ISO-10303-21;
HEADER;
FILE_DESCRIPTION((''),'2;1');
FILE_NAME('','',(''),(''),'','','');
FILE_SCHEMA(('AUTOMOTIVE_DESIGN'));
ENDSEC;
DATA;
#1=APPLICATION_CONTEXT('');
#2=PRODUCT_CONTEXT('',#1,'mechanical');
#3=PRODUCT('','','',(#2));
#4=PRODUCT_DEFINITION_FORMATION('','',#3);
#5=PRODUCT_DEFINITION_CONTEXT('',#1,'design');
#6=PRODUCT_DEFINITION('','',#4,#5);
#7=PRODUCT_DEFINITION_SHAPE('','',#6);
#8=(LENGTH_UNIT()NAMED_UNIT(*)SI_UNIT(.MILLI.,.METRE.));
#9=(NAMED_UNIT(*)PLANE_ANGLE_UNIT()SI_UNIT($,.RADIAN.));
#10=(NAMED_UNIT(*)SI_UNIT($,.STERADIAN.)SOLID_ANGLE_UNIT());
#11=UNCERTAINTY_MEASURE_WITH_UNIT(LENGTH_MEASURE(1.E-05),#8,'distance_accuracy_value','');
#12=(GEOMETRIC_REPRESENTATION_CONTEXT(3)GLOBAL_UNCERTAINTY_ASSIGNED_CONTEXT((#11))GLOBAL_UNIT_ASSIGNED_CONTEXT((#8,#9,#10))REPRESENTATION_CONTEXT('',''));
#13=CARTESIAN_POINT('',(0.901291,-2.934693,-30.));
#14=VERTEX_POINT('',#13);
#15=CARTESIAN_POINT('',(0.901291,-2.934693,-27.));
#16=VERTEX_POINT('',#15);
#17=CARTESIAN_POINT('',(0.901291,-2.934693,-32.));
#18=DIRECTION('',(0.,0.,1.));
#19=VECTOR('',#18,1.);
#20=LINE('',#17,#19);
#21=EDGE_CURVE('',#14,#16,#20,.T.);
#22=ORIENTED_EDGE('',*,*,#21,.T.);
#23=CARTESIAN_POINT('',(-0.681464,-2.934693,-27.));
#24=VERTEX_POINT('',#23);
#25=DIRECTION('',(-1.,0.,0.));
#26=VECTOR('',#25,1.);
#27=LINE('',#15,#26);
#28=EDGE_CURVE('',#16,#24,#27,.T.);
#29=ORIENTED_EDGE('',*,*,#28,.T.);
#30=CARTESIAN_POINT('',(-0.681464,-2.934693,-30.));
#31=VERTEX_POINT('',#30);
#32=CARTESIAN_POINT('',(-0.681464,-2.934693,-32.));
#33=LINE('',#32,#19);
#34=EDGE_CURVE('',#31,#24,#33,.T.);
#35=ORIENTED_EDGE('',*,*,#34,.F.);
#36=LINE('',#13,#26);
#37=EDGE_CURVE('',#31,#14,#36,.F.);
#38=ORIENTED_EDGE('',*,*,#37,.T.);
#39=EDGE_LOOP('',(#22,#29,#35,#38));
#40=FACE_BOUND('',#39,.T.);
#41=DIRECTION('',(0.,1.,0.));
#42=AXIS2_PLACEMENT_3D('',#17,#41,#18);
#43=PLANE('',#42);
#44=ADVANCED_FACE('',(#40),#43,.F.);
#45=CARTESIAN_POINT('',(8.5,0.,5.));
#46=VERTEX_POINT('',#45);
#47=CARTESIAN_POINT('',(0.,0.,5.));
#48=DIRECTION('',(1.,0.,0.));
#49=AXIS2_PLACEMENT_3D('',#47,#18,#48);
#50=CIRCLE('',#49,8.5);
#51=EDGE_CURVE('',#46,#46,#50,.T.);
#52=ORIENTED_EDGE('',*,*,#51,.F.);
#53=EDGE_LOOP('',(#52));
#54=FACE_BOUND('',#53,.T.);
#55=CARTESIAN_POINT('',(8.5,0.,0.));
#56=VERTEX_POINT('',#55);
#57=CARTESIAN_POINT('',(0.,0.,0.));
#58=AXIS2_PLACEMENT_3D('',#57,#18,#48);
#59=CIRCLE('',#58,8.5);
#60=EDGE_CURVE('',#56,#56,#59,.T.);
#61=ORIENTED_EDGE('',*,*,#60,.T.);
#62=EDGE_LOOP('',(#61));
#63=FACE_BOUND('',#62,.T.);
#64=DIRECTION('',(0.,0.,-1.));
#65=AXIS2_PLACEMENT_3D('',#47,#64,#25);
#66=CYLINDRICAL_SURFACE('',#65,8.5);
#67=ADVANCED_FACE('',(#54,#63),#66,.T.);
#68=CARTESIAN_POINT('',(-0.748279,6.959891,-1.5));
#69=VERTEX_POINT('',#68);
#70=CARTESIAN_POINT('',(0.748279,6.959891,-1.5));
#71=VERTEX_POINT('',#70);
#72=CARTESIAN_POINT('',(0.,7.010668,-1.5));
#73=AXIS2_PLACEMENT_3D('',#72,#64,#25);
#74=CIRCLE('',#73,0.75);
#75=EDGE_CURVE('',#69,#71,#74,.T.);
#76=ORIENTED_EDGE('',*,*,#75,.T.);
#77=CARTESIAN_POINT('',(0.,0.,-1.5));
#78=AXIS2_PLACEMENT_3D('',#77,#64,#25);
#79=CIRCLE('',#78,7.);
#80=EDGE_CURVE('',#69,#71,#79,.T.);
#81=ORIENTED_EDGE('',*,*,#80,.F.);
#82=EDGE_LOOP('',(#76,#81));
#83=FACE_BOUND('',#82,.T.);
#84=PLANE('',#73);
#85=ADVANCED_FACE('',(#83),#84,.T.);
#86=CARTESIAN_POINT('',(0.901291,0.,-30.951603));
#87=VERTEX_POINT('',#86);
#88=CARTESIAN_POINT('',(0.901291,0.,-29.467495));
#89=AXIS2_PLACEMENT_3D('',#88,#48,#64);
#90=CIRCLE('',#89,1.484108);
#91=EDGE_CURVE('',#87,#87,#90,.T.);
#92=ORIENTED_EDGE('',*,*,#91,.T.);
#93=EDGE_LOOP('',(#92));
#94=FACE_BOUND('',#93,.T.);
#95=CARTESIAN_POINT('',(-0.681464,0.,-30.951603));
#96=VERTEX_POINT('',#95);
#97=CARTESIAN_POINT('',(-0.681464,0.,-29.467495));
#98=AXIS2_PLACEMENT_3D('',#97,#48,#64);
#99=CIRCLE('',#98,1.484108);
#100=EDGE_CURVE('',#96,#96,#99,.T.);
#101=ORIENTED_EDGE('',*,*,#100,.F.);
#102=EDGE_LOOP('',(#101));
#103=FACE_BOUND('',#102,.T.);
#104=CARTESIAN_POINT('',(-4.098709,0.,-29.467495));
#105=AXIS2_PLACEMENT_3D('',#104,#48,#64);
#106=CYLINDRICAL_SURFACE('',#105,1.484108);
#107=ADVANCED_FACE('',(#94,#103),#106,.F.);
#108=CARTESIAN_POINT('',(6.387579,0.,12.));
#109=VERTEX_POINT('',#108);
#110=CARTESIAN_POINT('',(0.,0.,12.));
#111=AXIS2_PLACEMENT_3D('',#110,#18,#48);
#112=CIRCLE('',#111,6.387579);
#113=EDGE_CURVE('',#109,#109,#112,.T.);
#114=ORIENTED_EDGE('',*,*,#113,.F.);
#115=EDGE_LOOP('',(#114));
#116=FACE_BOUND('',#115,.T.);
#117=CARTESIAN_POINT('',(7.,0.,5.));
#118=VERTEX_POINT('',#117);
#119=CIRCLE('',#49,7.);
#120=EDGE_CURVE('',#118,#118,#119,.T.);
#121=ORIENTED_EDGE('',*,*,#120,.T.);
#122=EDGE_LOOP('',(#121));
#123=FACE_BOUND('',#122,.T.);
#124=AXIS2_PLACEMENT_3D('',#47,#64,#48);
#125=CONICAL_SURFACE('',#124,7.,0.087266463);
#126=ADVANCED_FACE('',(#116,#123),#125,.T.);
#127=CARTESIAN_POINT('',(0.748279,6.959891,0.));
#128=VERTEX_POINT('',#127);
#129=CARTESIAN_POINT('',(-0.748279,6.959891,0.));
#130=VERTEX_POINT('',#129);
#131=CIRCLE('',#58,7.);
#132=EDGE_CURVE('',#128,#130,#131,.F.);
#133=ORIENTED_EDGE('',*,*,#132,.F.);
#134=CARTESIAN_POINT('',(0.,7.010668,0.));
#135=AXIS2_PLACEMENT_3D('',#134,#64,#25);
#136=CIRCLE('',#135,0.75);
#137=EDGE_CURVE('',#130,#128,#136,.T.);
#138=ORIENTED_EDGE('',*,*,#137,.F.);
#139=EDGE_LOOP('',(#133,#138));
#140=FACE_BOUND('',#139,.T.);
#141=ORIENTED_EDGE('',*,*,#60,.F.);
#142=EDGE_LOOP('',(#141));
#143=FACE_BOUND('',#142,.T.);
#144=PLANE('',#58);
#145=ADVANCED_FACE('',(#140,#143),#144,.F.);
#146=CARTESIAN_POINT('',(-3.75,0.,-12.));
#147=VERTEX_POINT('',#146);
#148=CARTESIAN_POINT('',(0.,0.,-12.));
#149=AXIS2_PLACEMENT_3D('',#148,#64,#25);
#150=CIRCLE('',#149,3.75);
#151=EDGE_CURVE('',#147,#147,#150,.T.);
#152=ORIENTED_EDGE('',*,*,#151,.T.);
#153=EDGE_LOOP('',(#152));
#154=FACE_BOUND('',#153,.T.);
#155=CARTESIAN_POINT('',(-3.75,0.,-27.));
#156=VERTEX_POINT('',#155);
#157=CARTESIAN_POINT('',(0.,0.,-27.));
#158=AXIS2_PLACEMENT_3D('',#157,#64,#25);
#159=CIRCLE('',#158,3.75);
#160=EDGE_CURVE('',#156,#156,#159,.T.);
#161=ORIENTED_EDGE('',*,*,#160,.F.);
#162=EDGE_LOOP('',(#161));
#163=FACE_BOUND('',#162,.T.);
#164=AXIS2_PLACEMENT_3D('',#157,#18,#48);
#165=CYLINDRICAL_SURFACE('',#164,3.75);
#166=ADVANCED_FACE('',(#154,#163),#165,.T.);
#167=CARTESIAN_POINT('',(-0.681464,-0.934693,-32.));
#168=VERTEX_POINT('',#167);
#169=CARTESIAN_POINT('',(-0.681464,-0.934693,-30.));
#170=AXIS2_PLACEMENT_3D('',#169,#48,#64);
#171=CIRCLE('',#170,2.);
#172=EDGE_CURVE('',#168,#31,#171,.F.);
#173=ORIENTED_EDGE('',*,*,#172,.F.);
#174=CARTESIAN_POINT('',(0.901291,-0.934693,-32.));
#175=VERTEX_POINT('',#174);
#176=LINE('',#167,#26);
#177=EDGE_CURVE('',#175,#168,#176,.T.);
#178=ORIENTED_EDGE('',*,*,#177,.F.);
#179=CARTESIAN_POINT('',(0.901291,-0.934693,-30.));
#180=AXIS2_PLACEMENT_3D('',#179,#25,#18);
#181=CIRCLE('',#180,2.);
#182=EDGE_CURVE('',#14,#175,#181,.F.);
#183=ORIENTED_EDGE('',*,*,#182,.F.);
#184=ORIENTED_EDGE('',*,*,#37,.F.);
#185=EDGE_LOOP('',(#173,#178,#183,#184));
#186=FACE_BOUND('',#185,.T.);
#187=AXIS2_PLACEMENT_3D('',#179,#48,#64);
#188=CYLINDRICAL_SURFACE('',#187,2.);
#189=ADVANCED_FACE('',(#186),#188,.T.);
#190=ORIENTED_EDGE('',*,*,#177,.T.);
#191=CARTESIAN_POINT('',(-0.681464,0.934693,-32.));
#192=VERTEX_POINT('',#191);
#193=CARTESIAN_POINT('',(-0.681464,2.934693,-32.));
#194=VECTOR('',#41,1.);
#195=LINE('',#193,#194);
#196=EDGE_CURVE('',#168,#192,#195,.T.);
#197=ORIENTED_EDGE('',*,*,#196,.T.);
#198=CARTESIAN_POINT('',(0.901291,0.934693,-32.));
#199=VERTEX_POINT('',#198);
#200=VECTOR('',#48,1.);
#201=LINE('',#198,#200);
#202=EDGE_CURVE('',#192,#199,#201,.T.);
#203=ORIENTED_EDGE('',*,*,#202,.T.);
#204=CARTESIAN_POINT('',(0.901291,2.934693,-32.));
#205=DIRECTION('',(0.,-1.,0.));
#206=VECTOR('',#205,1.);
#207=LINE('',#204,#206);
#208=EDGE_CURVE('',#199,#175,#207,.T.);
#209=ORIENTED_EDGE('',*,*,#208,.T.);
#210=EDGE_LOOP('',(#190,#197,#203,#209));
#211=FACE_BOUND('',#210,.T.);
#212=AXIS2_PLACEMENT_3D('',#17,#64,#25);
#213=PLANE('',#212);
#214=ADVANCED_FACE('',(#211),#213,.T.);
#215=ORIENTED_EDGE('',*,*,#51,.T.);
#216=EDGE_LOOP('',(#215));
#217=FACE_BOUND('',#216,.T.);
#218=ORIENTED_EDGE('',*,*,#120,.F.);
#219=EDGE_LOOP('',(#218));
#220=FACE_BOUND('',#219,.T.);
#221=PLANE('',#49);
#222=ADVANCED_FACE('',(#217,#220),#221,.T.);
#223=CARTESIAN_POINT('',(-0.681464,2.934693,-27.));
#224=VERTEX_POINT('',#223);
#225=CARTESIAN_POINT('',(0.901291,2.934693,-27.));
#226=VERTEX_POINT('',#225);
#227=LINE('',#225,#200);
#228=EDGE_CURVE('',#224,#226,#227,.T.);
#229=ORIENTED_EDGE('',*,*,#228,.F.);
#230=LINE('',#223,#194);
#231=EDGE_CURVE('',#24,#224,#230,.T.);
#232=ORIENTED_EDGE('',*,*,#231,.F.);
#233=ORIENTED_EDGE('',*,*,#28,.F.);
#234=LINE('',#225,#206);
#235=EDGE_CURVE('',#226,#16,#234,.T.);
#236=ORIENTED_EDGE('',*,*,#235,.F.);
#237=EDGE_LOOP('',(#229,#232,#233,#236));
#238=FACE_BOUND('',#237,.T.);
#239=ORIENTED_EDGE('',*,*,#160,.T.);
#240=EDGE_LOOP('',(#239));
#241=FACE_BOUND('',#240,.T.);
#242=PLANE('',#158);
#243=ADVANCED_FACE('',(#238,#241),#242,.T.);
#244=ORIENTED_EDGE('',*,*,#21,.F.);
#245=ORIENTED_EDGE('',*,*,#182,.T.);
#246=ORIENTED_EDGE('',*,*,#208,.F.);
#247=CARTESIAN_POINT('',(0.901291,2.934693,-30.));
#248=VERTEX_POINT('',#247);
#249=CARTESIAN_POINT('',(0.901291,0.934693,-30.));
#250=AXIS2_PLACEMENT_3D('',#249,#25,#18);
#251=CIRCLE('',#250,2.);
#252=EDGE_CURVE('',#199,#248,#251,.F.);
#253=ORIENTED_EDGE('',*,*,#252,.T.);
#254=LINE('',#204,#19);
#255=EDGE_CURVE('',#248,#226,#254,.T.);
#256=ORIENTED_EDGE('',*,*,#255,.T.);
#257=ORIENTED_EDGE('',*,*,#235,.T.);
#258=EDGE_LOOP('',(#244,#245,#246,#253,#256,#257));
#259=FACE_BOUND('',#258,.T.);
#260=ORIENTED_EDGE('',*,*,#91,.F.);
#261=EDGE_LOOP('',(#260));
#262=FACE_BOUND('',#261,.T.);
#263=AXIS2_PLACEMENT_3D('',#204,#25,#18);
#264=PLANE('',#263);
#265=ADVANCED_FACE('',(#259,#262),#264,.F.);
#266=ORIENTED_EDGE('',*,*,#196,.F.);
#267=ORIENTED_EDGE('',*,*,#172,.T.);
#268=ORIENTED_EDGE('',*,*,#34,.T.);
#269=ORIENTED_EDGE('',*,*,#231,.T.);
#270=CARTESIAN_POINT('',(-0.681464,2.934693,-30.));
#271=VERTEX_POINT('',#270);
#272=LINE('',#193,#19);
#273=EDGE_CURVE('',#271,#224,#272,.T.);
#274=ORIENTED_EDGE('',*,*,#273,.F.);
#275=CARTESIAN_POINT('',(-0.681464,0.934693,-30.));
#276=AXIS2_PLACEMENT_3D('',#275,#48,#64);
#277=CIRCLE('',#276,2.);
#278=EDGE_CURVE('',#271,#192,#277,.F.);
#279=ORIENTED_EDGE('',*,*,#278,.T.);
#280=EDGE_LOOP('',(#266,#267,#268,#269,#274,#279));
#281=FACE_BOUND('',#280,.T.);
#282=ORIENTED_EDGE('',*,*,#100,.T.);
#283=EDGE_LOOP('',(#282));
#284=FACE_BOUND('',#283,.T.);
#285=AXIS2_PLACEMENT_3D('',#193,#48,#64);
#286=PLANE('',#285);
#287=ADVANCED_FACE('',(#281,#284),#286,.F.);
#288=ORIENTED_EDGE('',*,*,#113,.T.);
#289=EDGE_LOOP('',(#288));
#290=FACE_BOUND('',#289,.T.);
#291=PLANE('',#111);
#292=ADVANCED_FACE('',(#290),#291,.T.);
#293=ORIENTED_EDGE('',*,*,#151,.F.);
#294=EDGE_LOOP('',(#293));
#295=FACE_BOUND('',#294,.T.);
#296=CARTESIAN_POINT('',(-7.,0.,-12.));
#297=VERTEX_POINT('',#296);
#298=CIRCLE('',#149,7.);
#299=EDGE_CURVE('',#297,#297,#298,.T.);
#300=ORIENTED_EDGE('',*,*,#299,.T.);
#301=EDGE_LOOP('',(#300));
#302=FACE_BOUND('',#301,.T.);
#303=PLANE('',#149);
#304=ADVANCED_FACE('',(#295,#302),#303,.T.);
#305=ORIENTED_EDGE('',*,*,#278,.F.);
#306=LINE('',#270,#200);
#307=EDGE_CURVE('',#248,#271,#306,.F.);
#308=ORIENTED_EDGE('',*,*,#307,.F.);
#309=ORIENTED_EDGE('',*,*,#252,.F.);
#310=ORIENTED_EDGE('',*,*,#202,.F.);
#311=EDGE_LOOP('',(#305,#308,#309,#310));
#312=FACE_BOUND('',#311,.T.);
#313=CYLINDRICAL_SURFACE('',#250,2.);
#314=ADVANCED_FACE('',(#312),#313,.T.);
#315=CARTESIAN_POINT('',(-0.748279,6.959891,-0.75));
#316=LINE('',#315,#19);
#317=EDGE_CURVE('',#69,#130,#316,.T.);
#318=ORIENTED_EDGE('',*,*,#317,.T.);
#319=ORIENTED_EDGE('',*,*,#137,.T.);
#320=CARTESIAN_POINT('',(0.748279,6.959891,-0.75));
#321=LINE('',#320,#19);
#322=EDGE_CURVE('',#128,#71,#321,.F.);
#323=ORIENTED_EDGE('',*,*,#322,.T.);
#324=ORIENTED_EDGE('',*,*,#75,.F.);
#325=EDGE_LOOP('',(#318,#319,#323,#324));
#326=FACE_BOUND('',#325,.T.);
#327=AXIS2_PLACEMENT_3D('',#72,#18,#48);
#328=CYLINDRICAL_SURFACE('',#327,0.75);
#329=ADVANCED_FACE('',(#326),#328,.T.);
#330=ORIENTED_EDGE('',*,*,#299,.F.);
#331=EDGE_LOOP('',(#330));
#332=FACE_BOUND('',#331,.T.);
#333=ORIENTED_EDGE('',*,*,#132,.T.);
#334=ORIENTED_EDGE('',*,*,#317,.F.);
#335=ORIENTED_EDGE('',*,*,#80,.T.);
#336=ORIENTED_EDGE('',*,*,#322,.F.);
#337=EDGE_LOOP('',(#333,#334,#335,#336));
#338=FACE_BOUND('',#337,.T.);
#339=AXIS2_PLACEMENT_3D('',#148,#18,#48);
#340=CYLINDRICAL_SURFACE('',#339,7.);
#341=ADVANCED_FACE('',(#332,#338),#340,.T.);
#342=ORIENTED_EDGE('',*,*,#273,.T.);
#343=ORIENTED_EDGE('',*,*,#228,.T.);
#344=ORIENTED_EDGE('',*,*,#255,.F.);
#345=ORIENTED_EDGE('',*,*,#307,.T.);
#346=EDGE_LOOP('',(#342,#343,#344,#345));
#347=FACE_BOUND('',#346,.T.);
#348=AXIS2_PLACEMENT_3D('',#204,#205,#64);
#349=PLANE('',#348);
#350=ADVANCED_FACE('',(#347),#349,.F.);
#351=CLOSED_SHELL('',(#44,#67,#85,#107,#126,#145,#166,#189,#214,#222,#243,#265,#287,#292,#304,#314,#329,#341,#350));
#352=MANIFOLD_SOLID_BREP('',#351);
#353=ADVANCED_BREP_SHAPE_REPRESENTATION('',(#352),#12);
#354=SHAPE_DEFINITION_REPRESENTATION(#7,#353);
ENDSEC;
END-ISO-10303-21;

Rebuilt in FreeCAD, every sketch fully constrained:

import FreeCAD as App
import Part
import Sketcher

V = App.Vector


def edges_at(feature, points):
    """Names of the edges that pass closest to the given points."""
    edges = feature.Shape.Edges
    near = lambda p: min(range(len(edges)), key=lambda i: edges[i].distToShape(Part.Vertex(*p))[0])
    return sorted({f"Edge{near(p) + 1}" for p in points})

doc = App.newDocument("Part")
body = doc.addObject("PartDesign::Body", "Body")

# Sketch on XY plane
sketch1 = body.newObject("Sketcher::SketchObject", "Sketch")
sketch1.AttachmentSupport = (doc.getObject("XY_Plane"), [""])
sketch1.MapMode = "FlatFace"
sketch1.addGeometry(Part.Circle(V(0, 0, 0), V(0, 0, 1), 8), False)
sketch1.addConstraint([
    Sketcher.Constraint("Coincident", 0, 3, -1, 1),
    Sketcher.Constraint("Diameter", 0, 17.0),
])
pad1 = body.newObject("PartDesign::Pad", "Pad")
pad1.Profile = sketch1
pad1.Length = 5

# Sketch on XY plane
sketch2 = body.newObject("Sketcher::SketchObject", "Sketch001")
sketch2.AttachmentSupport = (doc.getObject("XY_Plane"), [""])
sketch2.MapMode = "FlatFace"
sketch2.AttachmentOffset = App.Placement(V(0, 0, 5), App.Rotation())
sketch2.addGeometry(Part.Circle(V(0, 0, 0), V(0, 0, 1), 7), False)
sketch2.addConstraint([
    Sketcher.Constraint("Coincident", 0, 3, -1, 1),
    Sketcher.Constraint("Diameter", 0, 14.0),
])
pad2 = body.newObject("PartDesign::Pad", "Pad001")
pad2.Profile = sketch2
pad2.Length = 7
pad2.TaperAngle = -5

# Sketch on XY plane
sketch3 = body.newObject("Sketcher::SketchObject", "Sketch002")
sketch3.AttachmentSupport = (doc.getObject("XY_Plane"), [""])
sketch3.MapMode = "FlatFace"
sketch3.addGeometry(Part.Circle(V(0, 0, 0), V(0, 0, 1), 7), False)
sketch3.addConstraint([
    Sketcher.Constraint("Coincident", 0, 3, -1, 1),
    Sketcher.Constraint("Diameter", 0, 14.0),
])
pad3 = body.newObject("PartDesign::Pad", "Pad002")
pad3.Profile = sketch3
pad3.Length = 12
pad3.Reversed = True

# Sketch on XY plane
sketch4 = body.newObject("Sketcher::SketchObject", "Sketch003")
sketch4.AttachmentSupport = (doc.getObject("XY_Plane"), [""])
sketch4.MapMode = "FlatFace"
sketch4.AttachmentOffset = App.Placement(V(0, 0, -12), App.Rotation())
sketch4.addGeometry(Part.Circle(V(0, 0, 0), V(0, 0, 1), 3.8), False)
sketch4.addConstraint([
    Sketcher.Constraint("Coincident", 0, 3, -1, 1),
    Sketcher.Constraint("Diameter", 0, 7.5),
])
pad4 = body.newObject("PartDesign::Pad", "Pad003")
pad4.Profile = sketch4
pad4.Length = 15
pad4.Reversed = True

# Sketch on XY plane
sketch5 = body.newObject("Sketcher::SketchObject", "Sketch004")
sketch5.AttachmentSupport = (doc.getObject("XY_Plane"), [""])
sketch5.MapMode = "FlatFace"
sketch5.AttachmentOffset = App.Placement(V(0, 0, -27), App.Rotation())
sketch5.addGeometry([
    Part.LineSegment(V(0.9, 2.9, 0), V(0.9, -2.9, 0)),
    Part.LineSegment(V(0.9, -2.9, 0), V(-0.7, -2.9, 0)),
    Part.LineSegment(V(-0.7, -2.9, 0), V(-0.7, 2.9, 0)),
    Part.LineSegment(V(-0.7, 2.9, 0), V(0.9, 2.9, 0)),
], False)
sketch5.addConstraint([
    Sketcher.Constraint("Coincident", 0, 2, 1, 1),
    Sketcher.Constraint("Coincident", 1, 2, 2, 1),
    Sketcher.Constraint("Coincident", 2, 2, 3, 1),
    Sketcher.Constraint("Coincident", 3, 2, 0, 1),
    Sketcher.Constraint("Vertical", 0),
    Sketcher.Constraint("Horizontal", 1),
    Sketcher.Constraint("Vertical", 2),
    Sketcher.Constraint("Horizontal", 3),
    Sketcher.Constraint("DistanceX", 1, 2, 1, 1, 1.582756),
    Sketcher.Constraint("DistanceY", 0, 2, 0, 1, 5.869385),
    Sketcher.Constraint("DistanceX", -1, 1, 0, 2, 0.901291),
    Sketcher.Constraint("DistanceY", 0, 2, -1, 1, 2.934693),
])
pad5 = body.newObject("PartDesign::Pad", "Pad004")
pad5.Profile = sketch5
pad5.Length = 5
pad5.Reversed = True

# Sketch on YZ plane
sketch6 = body.newObject("Sketcher::SketchObject", "Sketch005")
sketch6.AttachmentSupport = (doc.getObject("YZ_Plane"), [""])
sketch6.MapMode = "FlatFace"
sketch6.AttachmentOffset = App.Placement(V(0, 0, 0.901291), App.Rotation())
sketch6.addGeometry(Part.Circle(V(0, -29.5, 0), V(0, 0, 1), 1.5), False)
sketch6.addConstraint([
    Sketcher.Constraint("PointOnObject", 0, 3, -2),
    Sketcher.Constraint("Diameter", 0, 2.968217),
    Sketcher.Constraint("DistanceY", 0, 3, -1, 1, 29.467495),
])
pocket1 = body.newObject("PartDesign::Pocket", "Pocket")
pocket1.Profile = sketch6
pocket1.Length = 5
doc.recompute()

fillet = body.newObject("PartDesign::Fillet", "Fillet")
fillet.Base = (pocket1, edges_at(pocket1, [(0.11, -2.935, -32), (0.11, 2.935, -32)]))
fillet.Radius = 2

# Sketch on XY plane
sketch7 = body.newObject("Sketcher::SketchObject", "Sketch006")
sketch7.AttachmentSupport = (doc.getObject("XY_Plane"), [""])
sketch7.MapMode = "FlatFace"
sketch7.addGeometry(Part.Circle(V(0, 7, 0), V(0, 0, 1), 0.8), False)
sketch7.addConstraint([
    Sketcher.Constraint("PointOnObject", 0, 3, -2),
    Sketcher.Constraint("Diameter", 0, 1.5),
    Sketcher.Constraint("DistanceY", -1, 1, 0, 3, 7.010668),
])
pad6 = body.newObject("PartDesign::Pad", "Pad005")
pad6.Profile = sketch7
pad6.Length = 1.5
pad6.Reversed = True

doc.recompute()
